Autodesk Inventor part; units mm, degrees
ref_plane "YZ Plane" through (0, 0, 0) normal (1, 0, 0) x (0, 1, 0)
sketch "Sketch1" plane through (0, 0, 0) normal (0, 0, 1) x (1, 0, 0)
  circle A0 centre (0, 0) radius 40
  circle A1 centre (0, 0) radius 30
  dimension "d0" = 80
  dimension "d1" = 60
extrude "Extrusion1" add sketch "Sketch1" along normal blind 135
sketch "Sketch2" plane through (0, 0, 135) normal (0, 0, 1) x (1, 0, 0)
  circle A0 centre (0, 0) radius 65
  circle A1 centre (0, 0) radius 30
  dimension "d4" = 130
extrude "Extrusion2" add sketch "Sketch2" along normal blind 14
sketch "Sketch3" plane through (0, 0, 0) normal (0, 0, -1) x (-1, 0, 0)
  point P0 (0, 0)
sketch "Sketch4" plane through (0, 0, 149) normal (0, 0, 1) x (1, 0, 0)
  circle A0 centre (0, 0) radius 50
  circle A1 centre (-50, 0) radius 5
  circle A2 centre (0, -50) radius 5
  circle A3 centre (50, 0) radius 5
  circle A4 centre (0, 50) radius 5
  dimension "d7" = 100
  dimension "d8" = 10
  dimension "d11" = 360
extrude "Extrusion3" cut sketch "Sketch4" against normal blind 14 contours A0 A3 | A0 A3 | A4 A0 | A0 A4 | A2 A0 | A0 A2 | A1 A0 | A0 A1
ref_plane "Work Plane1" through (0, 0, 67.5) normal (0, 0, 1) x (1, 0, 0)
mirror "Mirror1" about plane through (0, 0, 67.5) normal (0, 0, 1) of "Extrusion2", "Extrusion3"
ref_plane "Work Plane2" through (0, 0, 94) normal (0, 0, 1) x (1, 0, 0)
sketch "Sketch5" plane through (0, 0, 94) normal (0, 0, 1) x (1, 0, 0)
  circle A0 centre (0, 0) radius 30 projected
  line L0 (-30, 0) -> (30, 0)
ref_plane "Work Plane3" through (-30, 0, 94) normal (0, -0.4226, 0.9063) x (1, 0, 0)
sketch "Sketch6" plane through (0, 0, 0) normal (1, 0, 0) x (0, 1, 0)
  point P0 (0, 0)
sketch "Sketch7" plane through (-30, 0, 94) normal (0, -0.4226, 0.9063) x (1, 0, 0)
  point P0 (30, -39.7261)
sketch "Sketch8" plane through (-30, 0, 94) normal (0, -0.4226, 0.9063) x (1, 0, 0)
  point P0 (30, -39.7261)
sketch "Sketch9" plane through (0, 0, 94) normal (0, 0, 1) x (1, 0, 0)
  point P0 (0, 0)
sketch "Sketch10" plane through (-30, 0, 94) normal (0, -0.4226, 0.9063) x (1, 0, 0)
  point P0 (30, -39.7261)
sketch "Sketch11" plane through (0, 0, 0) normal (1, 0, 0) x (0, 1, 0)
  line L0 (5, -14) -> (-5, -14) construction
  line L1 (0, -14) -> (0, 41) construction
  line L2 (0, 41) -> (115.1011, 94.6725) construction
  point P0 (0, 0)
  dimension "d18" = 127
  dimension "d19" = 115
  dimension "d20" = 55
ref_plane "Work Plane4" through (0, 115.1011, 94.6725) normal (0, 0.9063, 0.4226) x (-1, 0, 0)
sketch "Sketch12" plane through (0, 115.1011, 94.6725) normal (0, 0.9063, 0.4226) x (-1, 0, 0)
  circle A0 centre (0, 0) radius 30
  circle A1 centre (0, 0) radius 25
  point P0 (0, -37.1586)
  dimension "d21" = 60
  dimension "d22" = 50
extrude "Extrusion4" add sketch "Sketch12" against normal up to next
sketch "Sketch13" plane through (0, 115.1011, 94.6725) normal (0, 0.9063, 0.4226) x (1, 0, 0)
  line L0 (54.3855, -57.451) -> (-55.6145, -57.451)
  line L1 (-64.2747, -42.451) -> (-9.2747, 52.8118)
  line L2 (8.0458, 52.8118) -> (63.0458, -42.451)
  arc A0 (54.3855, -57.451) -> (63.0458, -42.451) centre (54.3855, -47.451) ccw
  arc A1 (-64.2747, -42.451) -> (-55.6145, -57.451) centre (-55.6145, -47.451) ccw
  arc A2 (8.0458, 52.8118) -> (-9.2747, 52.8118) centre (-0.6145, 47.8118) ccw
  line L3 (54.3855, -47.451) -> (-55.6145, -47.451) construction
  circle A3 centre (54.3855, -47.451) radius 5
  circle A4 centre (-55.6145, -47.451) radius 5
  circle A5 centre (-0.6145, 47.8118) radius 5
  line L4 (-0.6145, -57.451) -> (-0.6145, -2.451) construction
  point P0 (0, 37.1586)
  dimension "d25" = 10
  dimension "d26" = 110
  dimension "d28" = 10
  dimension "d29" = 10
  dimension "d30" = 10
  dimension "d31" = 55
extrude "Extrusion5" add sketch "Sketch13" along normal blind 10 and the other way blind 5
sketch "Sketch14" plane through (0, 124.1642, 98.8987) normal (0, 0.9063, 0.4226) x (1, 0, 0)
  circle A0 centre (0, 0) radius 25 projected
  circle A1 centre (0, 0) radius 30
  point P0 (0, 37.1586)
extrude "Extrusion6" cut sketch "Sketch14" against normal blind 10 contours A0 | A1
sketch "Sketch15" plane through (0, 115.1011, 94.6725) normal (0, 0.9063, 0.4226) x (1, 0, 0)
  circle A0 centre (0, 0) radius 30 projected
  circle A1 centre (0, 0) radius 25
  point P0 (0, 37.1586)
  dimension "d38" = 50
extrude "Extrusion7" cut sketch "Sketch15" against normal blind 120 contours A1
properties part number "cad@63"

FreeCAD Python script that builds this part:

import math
import FreeCAD as App
import Part
import Sketcher

V = App.Vector

doc = App.newDocument("Part")
params = doc.addObject("Spreadsheet::Sheet", "Params")
for row, (alias, value) in enumerate([
    ("sketch1_diameter", "80 mm"),
    ("sketch1_diameter2", "60 mm"),
    ("pad1_length", "135 mm"),
    ("sketch2_diameter", "130 mm"),
    ("sketch2_diameter2", "60 mm"),
    ("pad2_length", "14 mm"),
    ("sketch3_diameter", "10 mm"),
    ("pocket1_length", "14 mm"),
    ("sketch4_diameter", "60 mm"),
    ("sketch4_diameter2", "50 mm"),
    ("sketch5_diameter", "10 mm"),
    ("sketch5_radius", "10 mm"),
    ("sketch5_width", "110 mm"),
    ("sketch5_length", "110 mm"),
    ("pad4_length", "10 mm"),
    ("pad4_length2", "5 mm"),
    ("sketch6_diameter", "60 mm"),
    ("pocket2_length", "10 mm"),
    ("sketch7_diameter", "50 mm"),
    ("pocket3_length", "120 mm"),
], start=1):
    params.set(f"A{row}", alias)
    params.set(f"B{row}", "=" + value)
    params.setAlias(f"B{row}", alias)

body = doc.addObject("PartDesign::Body", "Body")

# Sketch on XY plane
sketch1 = body.newObject("Sketcher::SketchObject", "Sketch")
sketch1.AttachmentSupport = (doc.getObject("XY_Plane"), [""])
sketch1.MapMode = "FlatFace"
sketch1.addGeometry(Part.Circle(V(0, 0, 0), V(0, 0, 1), 40), False)
sketch1.addGeometry(Part.Circle(V(0, 0, 0), V(0, 0, 1), 30), False)
sketch1.addConstraint(Sketcher.Constraint("Coincident", 0, 3, -1, 1))
sketch1.addConstraint(Sketcher.Constraint("Coincident", 1, 3, -1, 1))
sketch1.addConstraint(Sketcher.Constraint("Diameter", 0, 80.0))
sketch1.addConstraint(Sketcher.Constraint("Diameter", 1, 60.0))
sketch1.setExpression("Constraints[2]", "Params.sketch1_diameter")
sketch1.setExpression("Constraints[3]", "Params.sketch1_diameter2")
pad1 = body.newObject("PartDesign::Pad", "Pad")
pad1.Profile = sketch1
pad1.setExpression("Length", "Params.pad1_length")

# Sketch on XY plane
sketch2 = body.newObject("Sketcher::SketchObject", "Sketch001")
sketch2.AttachmentSupport = (doc.getObject("XY_Plane"), [""])
sketch2.MapMode = "FlatFace"
sketch2.AttachmentOffset = App.Placement(V(0, 0, 135), App.Rotation())
sketch2.addGeometry(Part.Circle(V(0, 0, 0), V(0, 0, 1), 65), False)
sketch2.addGeometry(Part.Circle(V(0, 0, 0), V(0, 0, 1), 30), False)
sketch2.addConstraint(Sketcher.Constraint("Coincident", 0, 3, -1, 1))
sketch2.addConstraint(Sketcher.Constraint("Coincident", 1, 3, -1, 1))
sketch2.addConstraint(Sketcher.Constraint("Diameter", 0, 130.0))
sketch2.addConstraint(Sketcher.Constraint("Diameter", 1, 60.0))
sketch2.setExpression("Constraints[2]", "Params.sketch2_diameter")
sketch2.setExpression("Constraints[3]", "Params.sketch2_diameter2")
pad2 = body.newObject("PartDesign::Pad", "Pad001")
pad2.Profile = sketch2
pad2.setExpression("Length", "Params.pad2_length")

# Sketch on XY plane
sketch3 = body.newObject("Sketcher::SketchObject", "Sketch002")
sketch3.AttachmentSupport = (doc.getObject("XY_Plane"), [""])
sketch3.MapMode = "FlatFace"
sketch3.AttachmentOffset = App.Placement(V(0, 0, 149), App.Rotation())
sketch3.addGeometry(Part.Circle(V(50, 0, 0), V(0, 0, 1), 5), False)
sketch3.addGeometry(Part.Circle(V(0, 50, 0), V(0, 0, 1), 5), False)
sketch3.addGeometry(Part.Circle(V(0, -50, 0), V(0, 0, 1), 5), False)
sketch3.addGeometry(Part.Circle(V(-50, 0, 0), V(0, 0, 1), 5), False)
sketch3.addConstraint(Sketcher.Constraint("Equal", 0, 1))
sketch3.addConstraint(Sketcher.Constraint("Equal", 1, 2))
sketch3.addConstraint(Sketcher.Constraint("Equal", 2, 3))
sketch3.addConstraint(Sketcher.Constraint("Symmetric", 1, 3, 2, 3, -1, 1))
sketch3.addConstraint(Sketcher.Constraint("Symmetric", 0, 3, 3, 3, -1, 1))
sketch3.addConstraint(Sketcher.Constraint("PointOnObject", 0, 3, -1))
sketch3.addConstraint(Sketcher.Constraint("PointOnObject", 1, 3, -2))
sketch3.addConstraint(Sketcher.Constraint("Diameter", 0, 10.0))
sketch3.addConstraint(Sketcher.Constraint("DistanceY", 2, 3, 1, 3, 100.0))
sketch3.addConstraint(Sketcher.Constraint("DistanceX", 3, 3, 0, 3, 100.0))
sketch3.setExpression("Constraints[7]", "Params.sketch3_diameter")
pocket1 = body.newObject("PartDesign::Pocket", "Pocket")
pocket1.Profile = sketch3
pocket1.setExpression("Length", "Params.pocket1_length")
doc.recompute()

datumplane = body.newObject("PartDesign::Plane", "DatumPlane")
datumplane.AttachmentSupport = (doc.getObject("XY_Plane"), [""])
datumplane.MapMode = "FlatFace"
datumplane.AttachmentOffset = App.Placement(V(0, 0, 67.5), App.Rotation())
mirrored = body.newObject("PartDesign::Mirrored", "Mirrored")
mirrored.Originals = [pad2, pocket1]
mirrored.MirrorPlane = (datumplane, [""])
body.Tip = mirrored

# Sketch on an angled plane
sketch4 = body.newObject("Sketcher::SketchObject", "Sketch003")
sketch4.Placement = App.Placement(V(0, 115.1011, 94.6725), App.Rotation(V(-1, 0, 0), V(0, -0.422618262, 0.906307787), V(0, 0.906307787, 0.422618262), "ZXY"))
sketch4.addGeometry(Part.Circle(V(0, 0, 0), V(0, 0, 1), 30), False)
sketch4.addGeometry(Part.Circle(V(0, 0, 0), V(0, 0, 1), 25), False)
sketch4.addConstraint(Sketcher.Constraint("Coincident", 0, 3, -1, 1))
sketch4.addConstraint(Sketcher.Constraint("Coincident", 1, 3, -1, 1))
sketch4.addConstraint(Sketcher.Constraint("Diameter", 0, 60.0))
sketch4.addConstraint(Sketcher.Constraint("Diameter", 1, 50.0))
sketch4.setExpression("Constraints[2]", "Params.sketch4_diameter")
sketch4.setExpression("Constraints[3]", "Params.sketch4_diameter2")
pad3 = body.newObject("PartDesign::Pad", "Pad002")
pad3.Profile = sketch4
pad3.Type = "UpToFirst"
pad3.Reversed = True

# Sketch on an angled plane
sketch5 = body.newObject("Sketcher::SketchObject", "Sketch004")
sketch5.Placement = App.Placement(V(0, 115.1011, 94.6725), App.Rotation(V(1, 0, 0), V(0, 0.422618262, -0.906307787), V(0, 0.906307787, 0.422618262), "ZXY"))
sketch5.addGeometry(Part.LineSegment(V(-55.6145, -57.451, 0), V(54.3855, -57.451, 0)), False)
sketch5.addGeometry(Part.ArcOfCircle(Part.Circle(V(54.3855, -47.451, 0), V(0, 0, 1), 10), math.radians(-90), math.radians(29.999868)), False)
sketch5.addGeometry(Part.LineSegment(V(63.0458, -42.451, 0), V(8.0458, 52.8118, 0)), False)
sketch5.addGeometry(Part.ArcOfCircle(Part.Circle(V(-0.6145, 47.8118, 0), V(0, 0, 1), 10.00004), math.radians(29.999868), math.radians(149.999845)), False)
sketch5.addGeometry(Part.LineSegment(V(-9.2747, 52.8118, 0), V(-64.2747, -42.451, 0)), False)
sketch5.addGeometry(Part.ArcOfCircle(Part.Circle(V(-55.6145, -47.451, 0), V(0, 0, 1), 9.999953), math.radians(149.999845), math.radians(270)), False)
sketch5.addGeometry(Part.Circle(V(-55.6145, -47.451, 0), V(0, 0, 1), 5), False)
sketch5.addGeometry(Part.Circle(V(54.3855, -47.451, 0), V(0, 0, 1), 5), False)
sketch5.addGeometry(Part.Circle(V(-0.6145, 47.8118, 0), V(0, 0, 1), 5), False)
sketch5.addConstraint(Sketcher.Constraint("Tangent", 0, 2, 1, 1))
sketch5.addConstraint(Sketcher.Constraint("Tangent", 1, 2, 2, 1))
sketch5.addConstraint(Sketcher.Constraint("Tangent", 2, 2, 3, 1))
sketch5.addConstraint(Sketcher.Constraint("Tangent", 3, 2, 4, 1))
sketch5.addConstraint(Sketcher.Constraint("Tangent", 4, 2, 5, 1))
sketch5.addConstraint(Sketcher.Constraint("Tangent", 5, 2, 0, 1))
sketch5.addConstraint(Sketcher.Constraint("Horizontal", 0))
sketch5.addConstraint(Sketcher.Constraint("Coincident", 6, 3, 5, 3))
sketch5.addConstraint(Sketcher.Constraint("Coincident", 7, 3, 1, 3))
sketch5.addConstraint(Sketcher.Constraint("Coincident", 8, 3, 3, 3))
sketch5.addConstraint(Sketcher.Constraint("Equal", 1, 3))
sketch5.addConstraint(Sketcher.Constraint("Equal", 3, 5))
sketch5.addConstraint(Sketcher.Constraint("Equal", 6, 7))
sketch5.addConstraint(Sketcher.Constraint("Equal", 7, 8))
sketch5.addConstraint(Sketcher.Constraint("Horizontal", 2, 2, 3, 2))
sketch5.addConstraint(Sketcher.Constraint("Diameter", 6, 10.0))
sketch5.addConstraint(Sketcher.Constraint("Radius", 1, 10.0))
sketch5.addConstraint(Sketcher.Constraint("DistanceX", 0, 1, 0, 2, 110.0))
sketch5.addConstraint(Sketcher.Constraint("Distance", 2, 110.0))
sketch5.addConstraint(Sketcher.Constraint("DistanceY", 1, 3, -1, 1, 47.451))
sketch5.addConstraint(Sketcher.Constraint("DistanceX", -1, 1, 1, 3, 54.3855))
sketch5.setExpression("Constraints[15]", "Params.sketch5_diameter")
sketch5.setExpression("Constraints[16]", "Params.sketch5_radius")
sketch5.setExpression("Constraints[17]", "Params.sketch5_width")
sketch5.setExpression("Constraints[18]", "Params.sketch5_length")
pad4 = body.newObject("PartDesign::Pad", "Pad003")
pad4.Profile = sketch5
pad4.Type = "TwoLengths"
pad4.setExpression("Length", "Params.pad4_length")
pad4.setExpression("Length2", "Params.pad4_length2")

# Sketch on an angled plane
sketch6 = body.newObject("Sketcher::SketchObject", "Sketch005")
sketch6.Placement = App.Placement(V(0, 124.1642, 98.8987), App.Rotation(V(1, 0, 0), V(0, 0.422618262, -0.906307787), V(0, 0.906307787, 0.422618262), "ZXY"))
sketch6.addGeometry(Part.Circle(V(0, 0, 0), V(0, 0, 1), 30), False)
sketch6.addConstraint(Sketcher.Constraint("Coincident", 0, 3, -1, 1))
sketch6.addConstraint(Sketcher.Constraint("Diameter", 0, 60.0))
sketch6.setExpression("Constraints[1]", "Params.sketch6_diameter")
pocket2 = body.newObject("PartDesign::Pocket", "Pocket001")
pocket2.Profile = sketch6
pocket2.setExpression("Length", "Params.pocket2_length")

# Sketch on an angled plane
sketch7 = body.newObject("Sketcher::SketchObject", "Sketch006")
sketch7.Placement = App.Placement(V(0, 115.1011, 94.6725), App.Rotation(V(1, 0, 0), V(0, 0.422618262, -0.906307787), V(0, 0.906307787, 0.422618262), "ZXY"))
sketch7.addGeometry(Part.Circle(V(0, 0, 0), V(0, 0, 1), 25), False)
sketch7.addConstraint(Sketcher.Constraint("Coincident", 0, 3, -1, 1))
sketch7.addConstraint(Sketcher.Constraint("Diameter", 0, 50.0))
sketch7.setExpression("Constraints[1]", "Params.sketch7_diameter")
pocket3 = body.newObject("PartDesign::Pocket", "Pocket002")
pocket3.Profile = sketch7
pocket3.setExpression("Length", "Params.pocket3_length")

doc.recompute()
